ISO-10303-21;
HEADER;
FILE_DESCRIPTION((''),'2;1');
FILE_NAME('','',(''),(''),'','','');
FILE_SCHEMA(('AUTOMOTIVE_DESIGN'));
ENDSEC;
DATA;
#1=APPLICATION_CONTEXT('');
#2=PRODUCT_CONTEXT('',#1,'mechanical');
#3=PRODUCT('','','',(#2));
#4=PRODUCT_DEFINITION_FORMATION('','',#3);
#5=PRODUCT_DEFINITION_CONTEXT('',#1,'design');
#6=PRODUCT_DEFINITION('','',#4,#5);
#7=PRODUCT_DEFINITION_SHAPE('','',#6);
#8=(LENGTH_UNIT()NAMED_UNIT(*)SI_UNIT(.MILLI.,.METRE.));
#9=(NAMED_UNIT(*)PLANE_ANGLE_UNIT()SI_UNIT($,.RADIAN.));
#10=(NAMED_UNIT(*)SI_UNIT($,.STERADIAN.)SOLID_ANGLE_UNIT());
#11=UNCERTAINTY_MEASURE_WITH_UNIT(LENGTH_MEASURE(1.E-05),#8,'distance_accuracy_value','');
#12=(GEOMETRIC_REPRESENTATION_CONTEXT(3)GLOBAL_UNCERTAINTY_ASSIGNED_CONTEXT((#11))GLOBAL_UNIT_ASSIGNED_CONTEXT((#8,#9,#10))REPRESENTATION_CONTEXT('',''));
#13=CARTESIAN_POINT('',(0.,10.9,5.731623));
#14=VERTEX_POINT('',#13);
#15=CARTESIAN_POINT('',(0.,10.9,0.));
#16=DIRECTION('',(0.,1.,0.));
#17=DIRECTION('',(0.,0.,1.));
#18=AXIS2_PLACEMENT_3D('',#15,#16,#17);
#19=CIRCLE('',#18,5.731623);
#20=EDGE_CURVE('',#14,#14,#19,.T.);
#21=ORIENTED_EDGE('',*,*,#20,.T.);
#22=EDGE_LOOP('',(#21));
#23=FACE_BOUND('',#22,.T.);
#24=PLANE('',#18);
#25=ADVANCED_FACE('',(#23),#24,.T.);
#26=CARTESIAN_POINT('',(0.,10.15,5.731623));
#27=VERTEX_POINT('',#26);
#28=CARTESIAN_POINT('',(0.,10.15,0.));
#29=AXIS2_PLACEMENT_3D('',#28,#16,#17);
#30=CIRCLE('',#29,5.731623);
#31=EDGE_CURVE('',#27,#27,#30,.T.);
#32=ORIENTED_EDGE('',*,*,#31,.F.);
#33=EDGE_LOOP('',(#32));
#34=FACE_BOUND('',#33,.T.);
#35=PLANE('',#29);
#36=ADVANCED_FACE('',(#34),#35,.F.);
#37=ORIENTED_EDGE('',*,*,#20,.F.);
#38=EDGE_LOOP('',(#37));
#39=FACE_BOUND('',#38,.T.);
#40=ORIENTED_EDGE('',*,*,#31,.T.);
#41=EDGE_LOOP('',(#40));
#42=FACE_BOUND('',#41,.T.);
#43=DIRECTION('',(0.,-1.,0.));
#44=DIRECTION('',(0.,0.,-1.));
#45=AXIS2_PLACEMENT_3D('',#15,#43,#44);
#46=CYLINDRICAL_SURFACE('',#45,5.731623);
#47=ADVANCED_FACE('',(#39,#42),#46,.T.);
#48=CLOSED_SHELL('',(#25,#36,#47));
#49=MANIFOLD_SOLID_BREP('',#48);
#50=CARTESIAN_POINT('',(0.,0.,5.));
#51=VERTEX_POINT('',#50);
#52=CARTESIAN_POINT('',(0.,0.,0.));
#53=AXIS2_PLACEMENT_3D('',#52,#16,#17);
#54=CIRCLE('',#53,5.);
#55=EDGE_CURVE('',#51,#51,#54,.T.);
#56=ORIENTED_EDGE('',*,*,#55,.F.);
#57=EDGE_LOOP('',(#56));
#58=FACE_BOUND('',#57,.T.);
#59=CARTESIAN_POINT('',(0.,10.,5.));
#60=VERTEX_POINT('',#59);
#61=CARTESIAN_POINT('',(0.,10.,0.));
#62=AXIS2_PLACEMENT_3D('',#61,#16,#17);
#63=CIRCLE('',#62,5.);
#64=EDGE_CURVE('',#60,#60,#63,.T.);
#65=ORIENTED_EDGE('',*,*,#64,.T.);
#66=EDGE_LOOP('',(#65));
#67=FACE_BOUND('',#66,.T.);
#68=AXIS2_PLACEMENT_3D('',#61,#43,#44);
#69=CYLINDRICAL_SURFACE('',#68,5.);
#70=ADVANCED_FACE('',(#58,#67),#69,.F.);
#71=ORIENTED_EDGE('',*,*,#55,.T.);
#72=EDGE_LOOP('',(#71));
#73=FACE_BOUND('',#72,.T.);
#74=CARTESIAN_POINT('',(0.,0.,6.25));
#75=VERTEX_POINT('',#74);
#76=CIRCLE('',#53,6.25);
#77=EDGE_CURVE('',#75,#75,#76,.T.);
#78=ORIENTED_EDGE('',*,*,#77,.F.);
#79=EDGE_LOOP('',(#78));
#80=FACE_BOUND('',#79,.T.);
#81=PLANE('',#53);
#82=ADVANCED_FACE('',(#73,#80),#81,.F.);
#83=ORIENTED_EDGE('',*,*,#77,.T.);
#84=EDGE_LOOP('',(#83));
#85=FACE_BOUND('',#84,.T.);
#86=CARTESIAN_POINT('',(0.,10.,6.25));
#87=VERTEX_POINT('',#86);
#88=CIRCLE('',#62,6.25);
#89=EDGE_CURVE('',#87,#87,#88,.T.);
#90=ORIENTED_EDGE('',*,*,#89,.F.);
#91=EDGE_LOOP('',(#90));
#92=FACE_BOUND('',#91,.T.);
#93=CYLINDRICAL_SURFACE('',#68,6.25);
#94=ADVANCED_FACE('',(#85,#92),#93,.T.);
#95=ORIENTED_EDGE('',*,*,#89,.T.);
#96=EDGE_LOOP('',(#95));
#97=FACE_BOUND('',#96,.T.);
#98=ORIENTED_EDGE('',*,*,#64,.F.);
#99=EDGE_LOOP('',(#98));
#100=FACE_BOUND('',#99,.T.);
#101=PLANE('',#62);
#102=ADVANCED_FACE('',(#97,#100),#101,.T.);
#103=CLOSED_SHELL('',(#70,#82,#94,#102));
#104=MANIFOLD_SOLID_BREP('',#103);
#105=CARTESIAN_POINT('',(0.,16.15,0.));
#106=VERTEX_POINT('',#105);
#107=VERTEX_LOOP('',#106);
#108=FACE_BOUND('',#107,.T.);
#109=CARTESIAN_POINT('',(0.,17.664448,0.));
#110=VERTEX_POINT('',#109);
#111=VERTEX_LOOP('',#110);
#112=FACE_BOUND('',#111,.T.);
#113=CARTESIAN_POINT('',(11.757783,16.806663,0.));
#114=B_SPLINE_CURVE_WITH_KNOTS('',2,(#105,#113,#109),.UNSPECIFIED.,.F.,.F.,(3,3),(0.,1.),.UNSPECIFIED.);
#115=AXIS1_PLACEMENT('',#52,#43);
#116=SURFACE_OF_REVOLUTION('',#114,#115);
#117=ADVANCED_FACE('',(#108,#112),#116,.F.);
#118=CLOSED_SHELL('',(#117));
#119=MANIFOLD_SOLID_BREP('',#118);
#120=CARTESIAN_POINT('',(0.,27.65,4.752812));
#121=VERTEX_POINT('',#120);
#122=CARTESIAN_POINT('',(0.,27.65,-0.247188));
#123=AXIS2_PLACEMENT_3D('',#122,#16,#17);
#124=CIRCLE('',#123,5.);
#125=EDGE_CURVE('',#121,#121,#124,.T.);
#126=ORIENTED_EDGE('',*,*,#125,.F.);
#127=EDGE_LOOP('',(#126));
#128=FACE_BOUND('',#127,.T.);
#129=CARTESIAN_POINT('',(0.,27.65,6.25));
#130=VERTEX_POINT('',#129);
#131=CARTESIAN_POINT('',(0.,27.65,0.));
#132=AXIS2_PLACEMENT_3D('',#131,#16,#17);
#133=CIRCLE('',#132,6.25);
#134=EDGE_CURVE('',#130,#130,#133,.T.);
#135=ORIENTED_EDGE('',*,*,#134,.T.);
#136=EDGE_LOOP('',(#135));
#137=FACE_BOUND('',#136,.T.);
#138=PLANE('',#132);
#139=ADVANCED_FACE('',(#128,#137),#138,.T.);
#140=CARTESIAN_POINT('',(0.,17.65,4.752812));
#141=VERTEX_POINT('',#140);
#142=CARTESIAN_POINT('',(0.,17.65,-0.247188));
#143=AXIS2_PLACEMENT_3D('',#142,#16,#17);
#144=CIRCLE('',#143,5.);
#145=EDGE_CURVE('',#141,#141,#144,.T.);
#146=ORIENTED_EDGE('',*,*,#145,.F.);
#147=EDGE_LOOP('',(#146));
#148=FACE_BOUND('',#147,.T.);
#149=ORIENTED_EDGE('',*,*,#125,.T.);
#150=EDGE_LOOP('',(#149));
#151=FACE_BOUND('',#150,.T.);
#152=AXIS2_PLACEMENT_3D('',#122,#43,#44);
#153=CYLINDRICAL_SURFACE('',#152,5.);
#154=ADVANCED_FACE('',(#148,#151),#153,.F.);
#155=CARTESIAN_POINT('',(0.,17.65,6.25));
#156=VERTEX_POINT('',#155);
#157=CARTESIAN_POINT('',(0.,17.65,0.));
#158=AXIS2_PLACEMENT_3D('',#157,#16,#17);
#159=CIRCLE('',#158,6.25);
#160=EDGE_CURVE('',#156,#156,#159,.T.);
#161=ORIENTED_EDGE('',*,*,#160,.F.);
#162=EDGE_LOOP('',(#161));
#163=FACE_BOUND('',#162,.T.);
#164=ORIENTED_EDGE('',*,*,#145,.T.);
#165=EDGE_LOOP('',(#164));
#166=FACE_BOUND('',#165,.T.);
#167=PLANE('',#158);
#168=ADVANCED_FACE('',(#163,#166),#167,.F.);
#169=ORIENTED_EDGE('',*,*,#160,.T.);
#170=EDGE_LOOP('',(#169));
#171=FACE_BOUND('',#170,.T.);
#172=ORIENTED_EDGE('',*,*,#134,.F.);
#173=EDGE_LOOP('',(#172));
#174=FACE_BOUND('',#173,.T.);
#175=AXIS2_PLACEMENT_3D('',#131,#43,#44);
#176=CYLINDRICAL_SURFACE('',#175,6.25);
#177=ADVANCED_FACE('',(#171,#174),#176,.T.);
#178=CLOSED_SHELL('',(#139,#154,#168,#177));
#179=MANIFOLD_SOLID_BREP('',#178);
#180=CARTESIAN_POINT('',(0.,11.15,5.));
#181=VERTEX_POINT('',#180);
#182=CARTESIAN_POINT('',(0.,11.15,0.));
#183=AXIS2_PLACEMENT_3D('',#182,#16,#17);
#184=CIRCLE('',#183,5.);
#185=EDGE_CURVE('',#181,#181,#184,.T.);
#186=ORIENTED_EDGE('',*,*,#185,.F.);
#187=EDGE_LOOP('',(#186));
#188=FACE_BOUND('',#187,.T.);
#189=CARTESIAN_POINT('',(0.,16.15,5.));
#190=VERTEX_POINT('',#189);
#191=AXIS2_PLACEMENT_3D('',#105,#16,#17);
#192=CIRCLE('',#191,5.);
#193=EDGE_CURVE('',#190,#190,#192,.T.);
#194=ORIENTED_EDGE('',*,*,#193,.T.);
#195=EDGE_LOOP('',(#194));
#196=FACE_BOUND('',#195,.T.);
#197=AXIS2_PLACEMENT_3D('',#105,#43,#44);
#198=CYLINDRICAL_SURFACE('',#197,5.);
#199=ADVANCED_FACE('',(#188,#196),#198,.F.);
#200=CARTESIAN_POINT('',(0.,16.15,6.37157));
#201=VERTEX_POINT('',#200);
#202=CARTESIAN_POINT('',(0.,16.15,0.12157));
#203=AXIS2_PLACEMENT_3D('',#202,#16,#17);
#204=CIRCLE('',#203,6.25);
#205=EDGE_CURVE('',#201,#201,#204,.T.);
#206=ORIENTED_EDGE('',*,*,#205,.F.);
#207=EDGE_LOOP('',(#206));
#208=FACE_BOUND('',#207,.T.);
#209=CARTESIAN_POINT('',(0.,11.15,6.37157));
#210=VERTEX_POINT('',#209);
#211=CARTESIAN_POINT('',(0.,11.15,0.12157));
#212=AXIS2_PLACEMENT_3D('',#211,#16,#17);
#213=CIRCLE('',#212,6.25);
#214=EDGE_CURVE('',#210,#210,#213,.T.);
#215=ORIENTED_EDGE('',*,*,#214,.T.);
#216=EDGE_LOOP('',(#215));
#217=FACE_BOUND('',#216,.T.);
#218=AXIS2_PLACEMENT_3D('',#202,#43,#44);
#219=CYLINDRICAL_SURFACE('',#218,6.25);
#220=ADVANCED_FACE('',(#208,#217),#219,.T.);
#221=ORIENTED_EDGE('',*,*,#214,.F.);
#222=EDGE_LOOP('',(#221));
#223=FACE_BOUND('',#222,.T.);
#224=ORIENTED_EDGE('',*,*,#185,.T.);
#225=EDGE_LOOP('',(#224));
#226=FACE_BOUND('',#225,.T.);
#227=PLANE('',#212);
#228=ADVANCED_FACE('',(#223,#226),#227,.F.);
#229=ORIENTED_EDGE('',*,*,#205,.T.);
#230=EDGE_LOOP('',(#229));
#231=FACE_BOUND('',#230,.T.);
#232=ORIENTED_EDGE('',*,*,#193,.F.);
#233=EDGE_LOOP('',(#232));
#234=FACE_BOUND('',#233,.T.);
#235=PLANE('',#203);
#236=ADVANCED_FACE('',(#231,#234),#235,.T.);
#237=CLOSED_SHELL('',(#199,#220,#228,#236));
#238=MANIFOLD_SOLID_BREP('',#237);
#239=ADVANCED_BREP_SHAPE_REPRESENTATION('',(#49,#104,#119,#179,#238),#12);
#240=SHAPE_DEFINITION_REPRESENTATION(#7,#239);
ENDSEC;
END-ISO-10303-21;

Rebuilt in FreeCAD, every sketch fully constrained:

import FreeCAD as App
import Part
import Sketcher
from FreeCAD import Vector
Q = App.Units.Quantity

doc = App.newDocument("Part")
params = doc.addObject("Spreadsheet::Sheet", "Params")
for row, (alias, value) in enumerate([
    ("sketch1_diameter", "10 mm"),
    ("sketch1_diameter2", "12.5 mm"),
    ("pad1_length", "10 mm"),
    ("pad2_length", "0.75 mm"),
    ("sketch3_diameter", "10 mm"),
    ("sketch3_diameter2", "12.5 mm"),
    ("pad3_length", "5 mm"),
    ("revolution_angle", "360 deg"),
    ("sketch5_diameter", "10 mm"),
    ("sketch5_diameter2", "12.5 mm"),
    ("pad4_length", "10 mm"),
], start=1):
    params.set(f"A{row}", alias)
    params.set(f"B{row}", "=" + value)
    params.setAlias(f"B{row}", alias)

body = doc.addObject("PartDesign::Body", "Body")

# Sketch on XZ plane
sketch1 = doc.addObject("Sketcher::SketchObject", "Sketch")
body.addObject(sketch1)
sketch1.AttachmentSupport = (doc.XZ_Plane, [""])
sketch1.MapMode = "FlatFace"
sketch1.addGeometry(Part.Circle(Vector(0, 0, 0), Vector(0, 0, 1), 6), False)
sketch1.addGeometry(Part.Circle(Vector(0, 0, 0), Vector(0, 0, 1), 5), False)
sketch1.addConstraint(Sketcher.Constraint("Coincident", 0, 3, -1, 1))
sketch1.addConstraint(Sketcher.Constraint("Coincident", 1, 3, -1, 1))
sketch1.addConstraint(Sketcher.Constraint("Diameter", 1, Q("10 mm")))
sketch1.addConstraint(Sketcher.Constraint("Diameter", 0, Q("12.5 mm")))
sketch1.setExpression("Constraints[2]", "Params.sketch1_diameter")
sketch1.setExpression("Constraints[3]", "Params.sketch1_diameter2")
pad1 = doc.addObject("PartDesign::Pad", "Pad")
body.addObject(pad1)
pad1.Profile = sketch1
pad1.setExpression("Length", "Params.pad1_length")
pad1.Reversed = True
body2 = doc.addObject("PartDesign::Body", "Body001")

# Sketch on XZ plane
sketch2 = doc.addObject("Sketcher::SketchObject", "Sketch001")
body2.addObject(sketch2)
sketch2.AttachmentSupport = (doc.getObject("XZ_Plane001"), [""])
sketch2.MapMode = "FlatFace"
sketch2.AttachmentOffset = App.Placement(Vector(0, 0, -10.15), App.Rotation())
sketch2.addGeometry(Part.Circle(Vector(0, 0, 0), Vector(0, 0, 1), 6), False)
sketch2.addConstraint(Sketcher.Constraint("Coincident", 0, 3, -1, 1))
sketch2.addConstraint(Sketcher.Constraint("Diameter", 0, Q("11.463246 mm")))
pad2 = doc.addObject("PartDesign::Pad", "Pad001")
body2.addObject(pad2)
pad2.Profile = sketch2
pad2.setExpression("Length", "Params.pad2_length")
pad2.Reversed = True
body3 = doc.addObject("PartDesign::Body", "Body002")

# Sketch on XZ plane
sketch3 = doc.addObject("Sketcher::SketchObject", "Sketch002")
body3.addObject(sketch3)
sketch3.AttachmentSupport = (doc.getObject("XZ_Plane002"), [""])
sketch3.MapMode = "FlatFace"
sketch3.AttachmentOffset = App.Placement(Vector(0, 0, -11.15), App.Rotation())
sketch3.addGeometry(Part.Circle(Vector(0, 0, 0), Vector(0, 0, 1), 6), False)
sketch3.addGeometry(Part.Circle(Vector(0, 0, 0), Vector(0, 0, 1), 5), False)
sketch3.addConstraint(Sketcher.Constraint("Coincident", 1, 3, -1, 1))
sketch3.addConstraint(Sketcher.Constraint("PointOnObject", 0, 3, -2))
sketch3.addConstraint(Sketcher.Constraint("Diameter", 1, Q("10 mm")))
sketch3.addConstraint(Sketcher.Constraint("Diameter", 0, Q("12.5 mm")))
sketch3.addConstraint(Sketcher.Constraint("DistanceY", -1, 1, 0, 3, Q("0.12157 mm")))
sketch3.setExpression("Constraints[2]", "Params.sketch3_diameter")
sketch3.setExpression("Constraints[3]", "Params.sketch3_diameter2")
pad3 = doc.addObject("PartDesign::Pad", "Pad002")
body3.addObject(pad3)
pad3.Profile = sketch3
pad3.setExpression("Length", "Params.pad3_length")
pad3.Reversed = True
body4 = doc.addObject("PartDesign::Body", "Body003")

# Sketch on XY plane
sketch4 = doc.addObject("Sketcher::SketchObject", "Sketch003")
body4.addObject(sketch4)
sketch4.AttachmentSupport = (doc.getObject("XY_Plane003"), [""])
sketch4.MapMode = "FlatFace"
sketch4.addGeometry(Part.LineSegment(Vector(0, 17.664448, 0), Vector(0, 16.15, 0)), False)
sketch4.addGeometry(Part.BSplineCurve([Vector(0, 16.15, 0), Vector(11.757783, 16.806663, 0), Vector(0, 17.664448, 0)], [3, 3], [0, 1], False, 2, [1, 1, 1], False), False)
sketch4.addConstraint(Sketcher.Constraint("Block", 1))
sketch4.addConstraint(Sketcher.Constraint("Coincident", 0, 1, 1, 2))
sketch4.addConstraint(Sketcher.Constraint("Coincident", 1, 1, 0, 2))
revolution = doc.addObject("PartDesign::Revolution", "Revolution")
body4.addObject(revolution)
revolution.Profile = sketch4
revolution.ReferenceAxis = (sketch4, ["V_Axis"])
revolution.setExpression("Angle", "Params.revolution_angle")
body5 = doc.addObject("PartDesign::Body", "Body004")

# Sketch on XZ plane
sketch5 = doc.addObject("Sketcher::SketchObject", "Sketch004")
body5.addObject(sketch5)
sketch5.AttachmentSupport = (doc.getObject("XZ_Plane004"), [""])
sketch5.MapMode = "FlatFace"
sketch5.AttachmentOffset = App.Placement(Vector(0, 0, -17.65), App.Rotation())
sketch5.addGeometry(Part.Circle(Vector(0, 0, 0), Vector(0, 0, 1), 6), False)
sketch5.addGeometry(Part.Circle(Vector(0, 0, 0), Vector(0, 0, 1), 5), False)
sketch5.addConstraint(Sketcher.Constraint("Coincident", 0, 3, -1, 1))
sketch5.addConstraint(Sketcher.Constraint("PointOnObject", 1, 3, -2))
sketch5.addConstraint(Sketcher.Constraint("Diameter", 1, Q("10 mm")))
sketch5.addConstraint(Sketcher.Constraint("Diameter", 0, Q("12.5 mm")))
sketch5.addConstraint(Sketcher.Constraint("DistanceY", 1, 3, -1, 1, Q("0.247188 mm")))
sketch5.setExpression("Constraints[2]", "Params.sketch5_diameter")
sketch5.setExpression("Constraints[3]", "Params.sketch5_diameter2")
pad4 = doc.addObject("PartDesign::Pad", "Pad003")
body5.addObject(pad4)
pad4.Profile = sketch5
pad4.setExpression("Length", "Params.pad4_length")
pad4.Reversed = True

doc.recompute()
